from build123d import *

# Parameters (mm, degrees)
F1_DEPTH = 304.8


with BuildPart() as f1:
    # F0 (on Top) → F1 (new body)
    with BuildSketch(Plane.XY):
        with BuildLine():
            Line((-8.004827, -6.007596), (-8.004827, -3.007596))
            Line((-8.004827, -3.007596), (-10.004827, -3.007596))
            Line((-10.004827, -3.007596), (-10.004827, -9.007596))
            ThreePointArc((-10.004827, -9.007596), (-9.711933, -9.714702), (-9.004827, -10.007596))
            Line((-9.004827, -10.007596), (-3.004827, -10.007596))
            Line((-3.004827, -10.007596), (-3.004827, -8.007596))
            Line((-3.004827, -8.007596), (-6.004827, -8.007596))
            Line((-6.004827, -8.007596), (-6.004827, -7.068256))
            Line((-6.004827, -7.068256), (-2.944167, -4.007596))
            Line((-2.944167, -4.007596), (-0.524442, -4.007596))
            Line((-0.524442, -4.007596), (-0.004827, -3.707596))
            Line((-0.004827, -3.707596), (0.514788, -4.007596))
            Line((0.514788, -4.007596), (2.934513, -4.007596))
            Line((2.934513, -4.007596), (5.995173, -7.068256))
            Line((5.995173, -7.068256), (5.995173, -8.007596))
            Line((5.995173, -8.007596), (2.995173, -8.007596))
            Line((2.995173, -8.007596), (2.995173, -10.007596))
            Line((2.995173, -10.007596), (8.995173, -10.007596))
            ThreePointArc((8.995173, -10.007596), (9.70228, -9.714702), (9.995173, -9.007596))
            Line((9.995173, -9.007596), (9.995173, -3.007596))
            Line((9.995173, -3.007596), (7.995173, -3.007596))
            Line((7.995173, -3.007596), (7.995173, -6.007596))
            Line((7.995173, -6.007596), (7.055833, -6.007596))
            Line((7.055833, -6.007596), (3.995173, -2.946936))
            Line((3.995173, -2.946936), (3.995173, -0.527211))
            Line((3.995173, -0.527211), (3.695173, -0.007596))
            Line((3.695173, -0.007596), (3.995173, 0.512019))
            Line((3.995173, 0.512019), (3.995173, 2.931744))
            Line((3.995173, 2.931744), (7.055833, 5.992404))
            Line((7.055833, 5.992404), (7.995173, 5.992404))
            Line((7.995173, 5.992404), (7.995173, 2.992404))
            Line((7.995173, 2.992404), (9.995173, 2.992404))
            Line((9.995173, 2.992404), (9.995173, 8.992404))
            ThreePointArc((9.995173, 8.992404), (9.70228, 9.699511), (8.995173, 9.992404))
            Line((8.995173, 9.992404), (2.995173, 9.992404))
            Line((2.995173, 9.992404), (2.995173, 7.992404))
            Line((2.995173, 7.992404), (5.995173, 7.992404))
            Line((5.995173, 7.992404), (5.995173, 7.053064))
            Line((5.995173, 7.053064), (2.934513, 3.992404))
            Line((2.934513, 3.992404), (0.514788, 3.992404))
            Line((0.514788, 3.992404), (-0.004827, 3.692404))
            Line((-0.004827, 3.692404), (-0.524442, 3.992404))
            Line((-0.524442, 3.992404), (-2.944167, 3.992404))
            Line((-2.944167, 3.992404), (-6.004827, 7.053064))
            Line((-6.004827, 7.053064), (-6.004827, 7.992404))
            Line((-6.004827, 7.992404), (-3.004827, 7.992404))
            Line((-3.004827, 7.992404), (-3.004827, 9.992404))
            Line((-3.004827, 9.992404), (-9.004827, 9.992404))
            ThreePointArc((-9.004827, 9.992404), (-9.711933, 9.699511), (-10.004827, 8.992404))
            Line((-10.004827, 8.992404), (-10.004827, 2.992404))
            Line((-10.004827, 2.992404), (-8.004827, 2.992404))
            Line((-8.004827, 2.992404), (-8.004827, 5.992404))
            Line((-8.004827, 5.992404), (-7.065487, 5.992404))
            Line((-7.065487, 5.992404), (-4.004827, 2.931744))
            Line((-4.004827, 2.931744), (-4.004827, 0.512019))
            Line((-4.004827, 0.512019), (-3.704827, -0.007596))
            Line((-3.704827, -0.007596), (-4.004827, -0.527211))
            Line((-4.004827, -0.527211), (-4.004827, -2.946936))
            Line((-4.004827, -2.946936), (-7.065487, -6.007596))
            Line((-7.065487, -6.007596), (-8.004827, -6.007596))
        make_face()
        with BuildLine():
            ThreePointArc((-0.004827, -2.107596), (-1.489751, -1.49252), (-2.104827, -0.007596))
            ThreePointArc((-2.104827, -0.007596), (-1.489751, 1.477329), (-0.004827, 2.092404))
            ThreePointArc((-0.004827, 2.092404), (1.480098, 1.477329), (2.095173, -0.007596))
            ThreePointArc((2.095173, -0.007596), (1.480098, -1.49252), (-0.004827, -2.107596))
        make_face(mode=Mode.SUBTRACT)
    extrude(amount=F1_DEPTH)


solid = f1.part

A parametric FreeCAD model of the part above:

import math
import FreeCAD as App
import Part
import Sketcher

V = App.Vector
Q = App.Units.Quantity

doc = App.newDocument("Part")
body = doc.addObject("PartDesign::Body", "Body")

# Sketch on XY plane
sketch1 = body.newObject("Sketcher::SketchObject", "Sketch")
sketch1.AttachmentSupport = (doc.getObject("XY_Plane"), [""])
sketch1.MapMode = "FlatFace"
sketch1.addGeometry(Part.LineSegment(V(-8, -6, 0), V(-8, -3, 0)), False)
sketch1.addGeometry(Part.LineSegment(V(-8, -3, 0), V(-10, -3, 0)), False)
sketch1.addGeometry(Part.LineSegment(V(-10, -3, 0), V(-10, -9, 0)), False)
sketch1.addGeometry(Part.ArcOfCircle(Part.Circle(V(-9, -9, 0), V(0, 0, 1), 1), math.radians(-180), math.radians(-90)), False)
sketch1.addGeometry(Part.LineSegment(V(-9, -10, 0), V(-3, -10, 0)), False)
sketch1.addGeometry(Part.LineSegment(V(-3, -10, 0), V(-3, -8, 0)), False)
sketch1.addGeometry(Part.LineSegment(V(-3, -8, 0), V(-6, -8, 0)), False)
sketch1.addGeometry(Part.LineSegment(V(-6, -8, 0), V(-6, -7.1, 0)), False)
sketch1.addGeometry(Part.LineSegment(V(-6, -7.1, 0), V(-2.9, -4, 0)), False)
sketch1.addGeometry(Part.LineSegment(V(-2.9, -4, 0), V(-0.5, -4, 0)), False)
sketch1.addGeometry(Part.LineSegment(V(-0.5, -4, 0), V(0, -3.7, 0)), False)
sketch1.addGeometry(Part.LineSegment(V(0, -3.7, 0), V(0.5, -4, 0)), False)
sketch1.addGeometry(Part.LineSegment(V(0.5, -4, 0), V(2.9, -4, 0)), False)
sketch1.addGeometry(Part.LineSegment(V(2.9, -4, 0), V(6, -7.1, 0)), False)
sketch1.addGeometry(Part.LineSegment(V(6, -7.1, 0), V(6, -8, 0)), False)
sketch1.addGeometry(Part.LineSegment(V(6, -8, 0), V(3, -8, 0)), False)
sketch1.addGeometry(Part.LineSegment(V(3, -8, 0), V(3, -10, 0)), False)
sketch1.addGeometry(Part.LineSegment(V(3, -10, 0), V(9, -10, 0)), False)
sketch1.addGeometry(Part.ArcOfCircle(Part.Circle(V(9, -9, 0), V(0, 0, 1), 1), math.radians(-90), math.radians(0)), False)
sketch1.addGeometry(Part.LineSegment(V(10, -9, 0), V(10, -3, 0)), False)
sketch1.addGeometry(Part.LineSegment(V(10, -3, 0), V(8, -3, 0)), False)
sketch1.addGeometry(Part.LineSegment(V(8, -3, 0), V(8, -6, 0)), False)
sketch1.addGeometry(Part.LineSegment(V(8, -6, 0), V(7.1, -6, 0)), False)
sketch1.addGeometry(Part.LineSegment(V(7.1, -6, 0), V(4, -2.9, 0)), False)
sketch1.addGeometry(Part.LineSegment(V(4, -2.9, 0), V(4, -0.5, 0)), False)
sketch1.addGeometry(Part.LineSegment(V(4, -0.5, 0), V(3.7, 0, 0)), False)
sketch1.addGeometry(Part.LineSegment(V(3.7, 0, 0), V(4, 0.5, 0)), False)
sketch1.addGeometry(Part.LineSegment(V(4, 0.5, 0), V(4, 2.9, 0)), False)
sketch1.addGeometry(Part.LineSegment(V(4, 2.9, 0), V(7.1, 6, 0)), False)
sketch1.addGeometry(Part.LineSegment(V(7.1, 6, 0), V(8, 6, 0)), False)
sketch1.addGeometry(Part.LineSegment(V(8, 6, 0), V(8, 3, 0)), False)
sketch1.addGeometry(Part.LineSegment(V(8, 3, 0), V(10, 3, 0)), False)
sketch1.addGeometry(Part.LineSegment(V(10, 3, 0), V(10, 9, 0)), False)
sketch1.addGeometry(Part.ArcOfCircle(Part.Circle(V(9, 9, 0), V(0, 0, 1), 1), math.radians(0), math.radians(90)), False)
sketch1.addGeometry(Part.LineSegment(V(9, 10, 0), V(3, 10, 0)), False)
sketch1.addGeometry(Part.LineSegment(V(3, 10, 0), V(3, 8, 0)), False)
sketch1.addGeometry(Part.LineSegment(V(3, 8, 0), V(6, 8, 0)), False)
sketch1.addGeometry(Part.LineSegment(V(6, 8, 0), V(6, 7.1, 0)), False)
sketch1.addGeometry(Part.LineSegment(V(6, 7.1, 0), V(2.9, 4, 0)), False)
sketch1.addGeometry(Part.LineSegment(V(2.9, 4, 0), V(0.5, 4, 0)), False)
sketch1.addGeometry(Part.LineSegment(V(0.5, 4, 0), V(0, 3.7, 0)), False)
sketch1.addGeometry(Part.LineSegment(V(0, 3.7, 0), V(-0.5, 4, 0)), False)
sketch1.addGeometry(Part.LineSegment(V(-0.5, 4, 0), V(-2.9, 4, 0)), False)
sketch1.addGeometry(Part.LineSegment(V(-2.9, 4, 0), V(-6, 7.1, 0)), False)
sketch1.addGeometry(Part.LineSegment(V(-6, 7.1, 0), V(-6, 8, 0)), False)
sketch1.addGeometry(Part.LineSegment(V(-6, 8, 0), V(-3, 8, 0)), False)
sketch1.addGeometry(Part.LineSegment(V(-3, 8, 0), V(-3, 10, 0)), False)
sketch1.addGeometry(Part.LineSegment(V(-3, 10, 0), V(-9, 10, 0)), False)
sketch1.addGeometry(Part.ArcOfCircle(Part.Circle(V(-9, 9, 0), V(0, 0, 1), 1), math.radians(90), math.radians(180)), False)
sketch1.addGeometry(Part.LineSegment(V(-10, 9, 0), V(-10, 3, 0)), False)
sketch1.addGeometry(Part.LineSegment(V(-10, 3, 0), V(-8, 3, 0)), False)
sketch1.addGeometry(Part.LineSegment(V(-8, 3, 0), V(-8, 6, 0)), False)
sketch1.addGeometry(Part.LineSegment(V(-8, 6, 0), V(-7.1, 6, 0)), False)
sketch1.addGeometry(Part.LineSegment(V(-7.1, 6, 0), V(-4, 2.9, 0)), False)
sketch1.addGeometry(Part.LineSegment(V(-4, 2.9, 0), V(-4, 0.5, 0)), False)
sketch1.addGeometry(Part.LineSegment(V(-4, 0.5, 0), V(-3.7, 0, 0)), False)
sketch1.addGeometry(Part.LineSegment(V(-3.7, 0, 0), V(-4, -0.5, 0)), False)
sketch1.addGeometry(Part.LineSegment(V(-4, -0.5, 0), V(-4, -2.9, 0)), False)
sketch1.addGeometry(Part.LineSegment(V(-4, -2.9, 0), V(-7.1, -6, 0)), False)
sketch1.addGeometry(Part.LineSegment(V(-7.1, -6, 0), V(-8, -6, 0)), False)
sketch1.addGeometry(Part.ArcOfCircle(Part.Circle(V(0, 0, 0), V(0, 0, 1), 2.1), math.radians(-90), math.radians(0)), False)
sketch1.addGeometry(Part.ArcOfCircle(Part.Circle(V(0, 0, 0), V(0, 0, 1), 2.1), math.radians(-180), math.radians(-90)), False)
sketch1.addGeometry(Part.ArcOfCircle(Part.Circle(V(0, 0, 0), V(0, 0, 1), 2.1), math.radians(90), math.radians(180)), False)
sketch1.addGeometry(Part.ArcOfCircle(Part.Circle(V(0, 0, 0), V(0, 0, 1), 2.1), math.radians(0), math.radians(90)), False)
sketch1.addConstraint(Sketcher.Constraint("Coincident", 0, 2, 1, 1))
sketch1.addConstraint(Sketcher.Constraint("Coincident", 1, 2, 2, 1))
sketch1.addConstraint(Sketcher.Constraint("Coincident", 2, 2, 3, 1))
sketch1.addConstraint(Sketcher.Constraint("Coincident", 3, 2, 4, 1))
sketch1.addConstraint(Sketcher.Constraint("Coincident", 4, 2, 5, 1))
sketch1.addConstraint(Sketcher.Constraint("Coincident", 5, 2, 6, 1))
sketch1.addConstraint(Sketcher.Constraint("Coincident", 6, 2, 7, 1))
sketch1.addConstraint(Sketcher.Constraint("Coincident", 7, 2, 8, 1))
sketch1.addConstraint(Sketcher.Constraint("Coincident", 8, 2, 9, 1))
sketch1.addConstraint(Sketcher.Constraint("Coincident", 9, 2, 10, 1))
sketch1.addConstraint(Sketcher.Constraint("Coincident", 10, 2, 11, 1))
sketch1.addConstraint(Sketcher.Constraint("Coincident", 11, 2, 12, 1))
sketch1.addConstraint(Sketcher.Constraint("Coincident", 12, 2, 13, 1))
sketch1.addConstraint(Sketcher.Constraint("Coincident", 13, 2, 14, 1))
sketch1.addConstraint(Sketcher.Constraint("Coincident", 14, 2, 15, 1))
sketch1.addConstraint(Sketcher.Constraint("Coincident", 15, 2, 16, 1))
sketch1.addConstraint(Sketcher.Constraint("Coincident", 16, 2, 17, 1))
sketch1.addConstraint(Sketcher.Constraint("Tangent", 17, 2, 18, 1))
sketch1.addConstraint(Sketcher.Constraint("Tangent", 18, 2, 19, 1))
sketch1.addConstraint(Sketcher.Constraint("Coincident", 19, 2, 20, 1))
sketch1.addConstraint(Sketcher.Constraint("Coincident", 20, 2, 21, 1))
sketch1.addConstraint(Sketcher.Constraint("Coincident", 21, 2, 22, 1))
sketch1.addConstraint(Sketcher.Constraint("Coincident", 22, 2, 23, 1))
sketch1.addConstraint(Sketcher.Constraint("Coincident", 23, 2, 24, 1))
sketch1.addConstraint(Sketcher.Constraint("Coincident", 24, 2, 25, 1))
sketch1.addConstraint(Sketcher.Constraint("Coincident", 25, 2, 26, 1))
sketch1.addConstraint(Sketcher.Constraint("Coincident", 26, 2, 27, 1))
sketch1.addConstraint(Sketcher.Constraint("Coincident", 27, 2, 28, 1))
sketch1.addConstraint(Sketcher.Constraint("Coincident", 28, 2, 29, 1))
sketch1.addConstraint(Sketcher.Constraint("Coincident", 29, 2, 30, 1))
sketch1.addConstraint(Sketcher.Constraint("Coincident", 30, 2, 31, 1))
sketch1.addConstraint(Sketcher.Constraint("Coincident", 31, 2, 32, 1))
sketch1.addConstraint(Sketcher.Constraint("Tangent", 32, 2, 33, 1))
sketch1.addConstraint(Sketcher.Constraint("Tangent", 33, 2, 34, 1))
sketch1.addConstraint(Sketcher.Constraint("Coincident", 34, 2, 35, 1))
sketch1.addConstraint(Sketcher.Constraint("Coincident", 35, 2, 36, 1))
sketch1.addConstraint(Sketcher.Constraint("Coincident", 36, 2, 37, 1))
sketch1.addConstraint(Sketcher.Constraint("Coincident", 37, 2, 38, 1))
sketch1.addConstraint(Sketcher.Constraint("Coincident", 38, 2, 39, 1))
sketch1.addConstraint(Sketcher.Constraint("Coincident", 39, 2, 40, 1))
sketch1.addConstraint(Sketcher.Constraint("Coincident", 40, 2, 41, 1))
sketch1.addConstraint(Sketcher.Constraint("Coincident", 41, 2, 42, 1))
sketch1.addConstraint(Sketcher.Constraint("Coincident", 42, 2, 43, 1))
sketch1.addConstraint(Sketcher.Constraint("Coincident", 43, 2, 44, 1))
sketch1.addConstraint(Sketcher.Constraint("Coincident", 44, 2, 45, 1))
sketch1.addConstraint(Sketcher.Constraint("Coincident", 45, 2, 46, 1))
sketch1.addConstraint(Sketcher.Constraint("Coincident", 46, 2, 47, 1))
sketch1.addConstraint(Sketcher.Constraint("Tangent", 47, 2, 48, 1))
sketch1.addConstraint(Sketcher.Constraint("Tangent", 48, 2, 49, 1))
sketch1.addConstraint(Sketcher.Constraint("Coincident", 49, 2, 50, 1))
sketch1.addConstraint(Sketcher.Constraint("Coincident", 50, 2, 51, 1))
sketch1.addConstraint(Sketcher.Constraint("Coincident", 51, 2, 52, 1))
sketch1.addConstraint(Sketcher.Constraint("Coincident", 52, 2, 53, 1))
sketch1.addConstraint(Sketcher.Constraint("Coincident", 53, 2, 54, 1))
sketch1.addConstraint(Sketcher.Constraint("Coincident", 54, 2, 55, 1))
sketch1.addConstraint(Sketcher.Constraint("Coincident", 55, 2, 56, 1))
sketch1.addConstraint(Sketcher.Constraint("Coincident", 56, 2, 57, 1))
sketch1.addConstraint(Sketcher.Constraint("Coincident", 57, 2, 58, 1))
sketch1.addConstraint(Sketcher.Constraint("Coincident", 58, 2, 59, 1))
sketch1.addConstraint(Sketcher.Constraint("Coincident", 59, 2, 0, 1))
sketch1.addConstraint(Sketcher.Constraint("Tangent", 60, 1, 61, 2))
sketch1.addConstraint(Sketcher.Constraint("Tangent", 61, 1, 62, 2))
sketch1.addConstraint(Sketcher.Constraint("Tangent", 62, 1, 63, 2))
sketch1.addConstraint(Sketcher.Constraint("Tangent", 63, 1, 60, 2))
sketch1.addConstraint(Sketcher.Constraint("Vertical", 0))
sketch1.addConstraint(Sketcher.Constraint("Horizontal", 1))
sketch1.addConstraint(Sketcher.Constraint("Vertical", 2))
sketch1.addConstraint(Sketcher.Constraint("Horizontal", 4))
sketch1.addConstraint(Sketcher.Constraint("Vertical", 5))
sketch1.addConstraint(Sketcher.Constraint("Horizontal", 6))
sketch1.addConstraint(Sketcher.Constraint("Vertical", 7))
sketch1.addConstraint(Sketcher.Constraint("Horizontal", 9))
sketch1.addConstraint(Sketcher.Constraint("Horizontal", 12))
sketch1.addConstraint(Sketcher.Constraint("Vertical", 14))
sketch1.addConstraint(Sketcher.Constraint("Horizontal", 15))
sketch1.addConstraint(Sketcher.Constraint("Vertical", 16))
sketch1.addConstraint(Sketcher.Constraint("Horizontal", 17))
sketch1.addConstraint(Sketcher.Constraint("Vertical", 19))
sketch1.addConstraint(Sketcher.Constraint("Horizontal", 20))
sketch1.addConstraint(Sketcher.Constraint("Vertical", 21))
sketch1.addConstraint(Sketcher.Constraint("Horizontal", 22))
sketch1.addConstraint(Sketcher.Constraint("Vertical", 24))
sketch1.addConstraint(Sketcher.Constraint("Vertical", 27))
sketch1.addConstraint(Sketcher.Constraint("Horizontal", 29))
sketch1.addConstraint(Sketcher.Constraint("Vertical", 30))
sketch1.addConstraint(Sketcher.Constraint("Horizontal", 31))
sketch1.addConstraint(Sketcher.Constraint("Vertical", 32))
sketch1.addConstraint(Sketcher.Constraint("Horizontal", 34))
sketch1.addConstraint(Sketcher.Constraint("Vertical", 35))
sketch1.addConstraint(Sketcher.Constraint("Horizontal", 36))
sketch1.addConstraint(Sketcher.Constraint("Vertical", 37))
sketch1.addConstraint(Sketcher.Constraint("Horizontal", 39))
sketch1.addConstraint(Sketcher.Constraint("Horizontal", 42))
sketch1.addConstraint(Sketcher.Constraint("Vertical", 44))
sketch1.addConstraint(Sketcher.Constraint("Horizontal", 45))
sketch1.addConstraint(Sketcher.Constraint("Vertical", 46))
sketch1.addConstraint(Sketcher.Constraint("Horizontal", 47))
sketch1.addConstraint(Sketcher.Constraint("Vertical", 49))
sketch1.addConstraint(Sketcher.Constraint("Horizontal", 50))
sketch1.addConstraint(Sketcher.Constraint("Vertical", 51))
sketch1.addConstraint(Sketcher.Constraint("Horizontal", 52))
sketch1.addConstraint(Sketcher.Constraint("Vertical", 54))
sketch1.addConstraint(Sketcher.Constraint("Vertical", 57))
sketch1.addConstraint(Sketcher.Constraint("Horizontal", 59))
sketch1.addConstraint(Sketcher.Constraint("Equal", 3, 18))
sketch1.addConstraint(Sketcher.Constraint("Equal", 18, 33))
sketch1.addConstraint(Sketcher.Constraint("Equal", 33, 48))
sketch1.addConstraint(Sketcher.Constraint("Equal", 60, 61))
sketch1.addConstraint(Sketcher.Constraint("Perpendicular", 8, 13))
sketch1.addConstraint(Sketcher.Constraint("Parallel", 13, 23))
sketch1.addConstraint(Sketcher.Constraint("Perpendicular", 10, 25))
sketch1.addConstraint(Sketcher.Constraint("Perpendicular", 11, 26))
sketch1.addConstraint(Sketcher.Constraint("Perpendicular", 23, 28))
sketch1.addConstraint(Sketcher.Constraint("Parallel", 28, 38))
sketch1.addConstraint(Sketcher.Constraint("Perpendicular", 25, 40))
sketch1.addConstraint(Sketcher.Constraint("Perpendicular", 26, 41))
sketch1.addConstraint(Sketcher.Constraint("Perpendicular", 38, 43))
sketch1.addConstraint(Sketcher.Constraint("Parallel", 43, 53))
sketch1.addConstraint(Sketcher.Constraint("Perpendicular", 40, 55))
sketch1.addConstraint(Sketcher.Constraint("Perpendicular", 41, 56))
sketch1.addConstraint(Sketcher.Constraint("Perpendicular", 53, 58))
sketch1.addConstraint(Sketcher.Constraint("Horizontal", 3, 3, 18, 3))
sketch1.addConstraint(Sketcher.Constraint("Horizontal", 33, 3, 48, 3))
sketch1.addConstraint(Sketcher.Constraint("Horizontal", 18, 3, 2, 2))
sketch1.addConstraint(Sketcher.Constraint("Horizontal", 9, 2, 11, 2))
sketch1.addConstraint(Sketcher.Constraint("Horizontal", 7, 2, 13, 2))
sketch1.addConstraint(Sketcher.Constraint("Horizontal", 6, 2, 14, 2))
sketch1.addConstraint(Sketcher.Constraint("Horizontal", 1, 2, 19, 2))
sketch1.addConstraint(Sketcher.Constraint("Horizontal", 62, 3, 25, 2))
sketch1.addConstraint(Sketcher.Constraint("Horizontal", 39, 2, 41, 2))
sketch1.addConstraint(Sketcher.Constraint("Horizontal", 37, 2, 43, 2))
sketch1.addConstraint(Sketcher.Constraint("Horizontal", 36, 2, 44, 2))
sketch1.addConstraint(Sketcher.Constraint("Horizontal", 31, 2, 49, 2))
sketch1.addConstraint(Sketcher.Constraint("Horizontal", 29, 2, 51, 2))
sketch1.addConstraint(Sketcher.Constraint("Horizontal", 27, 2, 53, 2))
sketch1.addConstraint(Sketcher.Constraint("Horizontal", 26, 2, 54, 2))
sketch1.addConstraint(Sketcher.Constraint("Horizontal", 25, 2, 55, 2))
sketch1.addConstraint(Sketcher.Constraint("Horizontal", 24, 2, 56, 2))
sketch1.addConstraint(Sketcher.Constraint("Horizontal", 23, 2, 57, 2))
sketch1.addConstraint(Sketcher.Constraint("Horizontal", 22, 2, 58, 2))
sketch1.addConstraint(Sketcher.Constraint("Horizontal", 55, 2, 61, 1))
sketch1.addConstraint(Sketcher.Constraint("Horizontal", 61, 1, 63, 1))
sketch1.addConstraint(Sketcher.Constraint("Vertical", 18, 3, 33, 3))
sketch1.addConstraint(Sketcher.Constraint("Vertical", 3, 3, 48, 3))
sketch1.addConstraint(Sketcher.Constraint("Vertical", 48, 3, 3, 2))
sketch1.addConstraint(Sketcher.Constraint("Vertical", 62, 3, 10, 2))
sketch1.addConstraint(Sketcher.Constraint("Vertical", 24, 2, 26, 2))
sketch1.addConstraint(Sketcher.Constraint("Vertical", 22, 2, 28, 2))
sketch1.addConstraint(Sketcher.Constraint("Vertical", 21, 2, 29, 2))
sketch1.addConstraint(Sketcher.Constraint("Vertical", 16, 2, 34, 2))
sketch1.addConstraint(Sketcher.Constraint("Vertical", 14, 2, 36, 2))
sketch1.addConstraint(Sketcher.Constraint("Vertical", 12, 2, 38, 2))
sketch1.addConstraint(Sketcher.Constraint("Vertical", 11, 2, 39, 2))
sketch1.addConstraint(Sketcher.Constraint("Vertical", 10, 2, 40, 2))
sketch1.addConstraint(Sketcher.Constraint("Vertical", 9, 2, 41, 2))
sketch1.addConstraint(Sketcher.Constraint("Vertical", 8, 2, 42, 2))
sketch1.addConstraint(Sketcher.Constraint("Vertical", 7, 2, 43, 2))
sketch1.addConstraint(Sketcher.Constraint("Vertical", 5, 2, 45, 2))
sketch1.addConstraint(Sketcher.Constraint("Vertical", 0, 2, 50, 2))
sketch1.addConstraint(Sketcher.Constraint("Vertical", 40, 2, 60, 1))
sketch1.addConstraint(Sketcher.Constraint("Vertical", 60, 1, 62, 1))
sketch1.addConstraint(Sketcher.Constraint("Equal", 9, 12))
sketch1.addConstraint(Sketcher.Constraint("Equal", 6, 15))
sketch1.addConstraint(Sketcher.Constraint("Equal", 4, 17))
sketch1.addConstraint(Sketcher.Constraint("Equal", 1, 20))
sketch1.addConstraint(Sketcher.Constraint("Equal", 29, 52))
sketch1.addConstraint(Sketcher.Constraint("Equal", 45, 0))
sketch1.addConstraint(Sketcher.Constraint("Equal", 47, 2))
sketch1.addConstraint(Sketcher.Constraint("Equal", 50, 5))
sketch1.addConstraint(Sketcher.Constraint("Equal", 59, 7))
sketch1.addConstraint(Sketcher.Constraint("Equal", 42, 24))
sketch1.addConstraint(Sketcher.Constraint("Equal", 24, 27))
sketch1.addConstraint(Sketcher.Constraint("Equal", 21, 30))
sketch1.addConstraint(Sketcher.Constraint("Equal", 19, 32))
sketch1.addConstraint(Sketcher.Constraint("Equal", 16, 35))
sketch1.addConstraint(Sketcher.Constraint("Equal", 14, 37))
sketch1.addConstraint(Sketcher.Constraint("Equal", 13, 23))
sketch1.addConstraint(Sketcher.Constraint("Equal", 11, 25))
sketch1.addConstraint(Sketcher.Constraint("Radius", 18, 1.000001))
sketch1.addConstraint(Sketcher.Constraint("Radius", 60, 2.099999))
sketch1.addConstraint(Sketcher.Constraint("DistanceX", 1, 2, 1, 1, 2.0))
sketch1.addConstraint(Sketcher.Constraint("DistanceX", 4, 1, 4, 2, 6.0))
sketch1.addConstraint(Sketcher.Constraint("DistanceX", 6, 2, 6, 1, 3.0))
sketch1.addConstraint(Sketcher.Constraint("Angle", 10, Q("30.000012 deg")))
sketch1.addConstraint(Sketcher.Constraint("Distance", 10, 0.6))
sketch1.addConstraint(Sketcher.Constraint("DistanceX", 22, 2, 22, 1, 0.93934))
sketch1.addConstraint(Sketcher.Constraint("DistanceX", 9, 1, 9, 2, 2.419725))
sketch1.addConstraint(Sketcher.Constraint("DistanceX", 9, 2, -1, 1, 0.524442))
sketch1.addConstraint(Sketcher.Constraint("DistanceY", 24, 2, -1, 1, 0.527211))
sketch1.addConstraint(Sketcher.Constraint("Distance", 8, 4.328427))
pad1 = body.newObject("PartDesign::Pad", "Pad")
pad1.Profile = sketch1
pad1.Length = 304.8

doc.recompute()
